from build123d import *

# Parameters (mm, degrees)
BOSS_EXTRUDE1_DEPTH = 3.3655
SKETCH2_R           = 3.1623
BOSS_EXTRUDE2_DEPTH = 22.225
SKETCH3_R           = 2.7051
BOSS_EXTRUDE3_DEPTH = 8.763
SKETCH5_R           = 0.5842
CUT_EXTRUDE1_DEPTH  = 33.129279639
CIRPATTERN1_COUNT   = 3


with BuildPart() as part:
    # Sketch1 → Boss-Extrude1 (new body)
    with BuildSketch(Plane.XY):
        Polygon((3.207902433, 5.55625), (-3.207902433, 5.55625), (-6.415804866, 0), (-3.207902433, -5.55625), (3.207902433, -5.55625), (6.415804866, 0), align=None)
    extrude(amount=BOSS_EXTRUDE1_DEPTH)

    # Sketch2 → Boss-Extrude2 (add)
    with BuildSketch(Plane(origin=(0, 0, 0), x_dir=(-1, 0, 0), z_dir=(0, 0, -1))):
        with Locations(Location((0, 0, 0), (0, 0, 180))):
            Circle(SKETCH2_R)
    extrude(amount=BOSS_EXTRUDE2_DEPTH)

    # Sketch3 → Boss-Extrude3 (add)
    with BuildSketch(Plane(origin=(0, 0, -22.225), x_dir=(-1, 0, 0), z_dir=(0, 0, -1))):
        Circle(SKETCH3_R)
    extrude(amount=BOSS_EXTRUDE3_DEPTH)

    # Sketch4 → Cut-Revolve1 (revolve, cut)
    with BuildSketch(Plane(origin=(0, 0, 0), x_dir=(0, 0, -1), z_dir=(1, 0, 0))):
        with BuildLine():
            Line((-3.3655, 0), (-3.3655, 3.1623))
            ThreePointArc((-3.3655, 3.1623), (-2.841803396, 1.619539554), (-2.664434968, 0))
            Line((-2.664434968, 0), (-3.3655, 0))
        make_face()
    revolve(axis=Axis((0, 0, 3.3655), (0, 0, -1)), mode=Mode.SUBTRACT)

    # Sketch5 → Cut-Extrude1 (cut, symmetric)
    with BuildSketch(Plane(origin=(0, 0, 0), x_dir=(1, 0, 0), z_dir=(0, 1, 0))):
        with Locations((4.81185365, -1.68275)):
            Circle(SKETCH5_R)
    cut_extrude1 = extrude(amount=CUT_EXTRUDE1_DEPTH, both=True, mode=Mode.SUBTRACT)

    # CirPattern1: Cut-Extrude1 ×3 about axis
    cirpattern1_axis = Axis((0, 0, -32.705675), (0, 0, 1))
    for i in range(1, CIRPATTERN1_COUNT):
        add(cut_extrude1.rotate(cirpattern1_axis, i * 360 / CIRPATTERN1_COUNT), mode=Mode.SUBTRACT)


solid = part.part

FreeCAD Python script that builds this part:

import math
import FreeCAD as App
import Part
import Sketcher
Q = App.Units.Quantity


def add_polygon(sketch, points):
    """Adds a closed chain of lines whose ends are joined by coincident constraints."""
    first, n = sketch.GeometryCount, len(points)
    for a, b in zip(points, points[1:] + points[:1]):
        sketch.addGeometry(Part.LineSegment(App.Vector(*a, 0), App.Vector(*b, 0)), False)
    for i in range(n):
        sketch.addConstraint(Sketcher.Constraint("Coincident", first + i, 2, first + (i + 1) % n, 1))

doc = App.newDocument("Part")
body = doc.addObject("PartDesign::Body", "Body")

# Sketch on XY plane
sketch1 = doc.addObject("Sketcher::SketchObject", "Sketch")
body.addObject(sketch1)
sketch1.AttachmentSupport = (doc.XY_Plane, [""])
sketch1.MapMode = "FlatFace"
add_polygon(sketch1, [(3.207902, 5.55625), (-3.207902, 5.55625), (-6.415805, 0), (-3.207902, -5.55625), (3.207902, -5.55625), (6.415805, 0)])  # lines 0-5
sketch1.addConstraint([
    Sketcher.Constraint("Horizontal", 0),
    Sketcher.Constraint("Horizontal", 3),
    Sketcher.Constraint("Symmetric", 0, 2, 3, 2, -1, 1),
    Sketcher.Constraint("Symmetric", 1, 2, 4, 2, -1, 1),
    Sketcher.Constraint("PointOnObject", 1, 2, -1),
    Sketcher.Constraint("Parallel", 2, 5),
    Sketcher.Constraint("Vertical", 0, 2, 2, 2),
    Sketcher.Constraint("Angle", 1, Q("-120 deg")),
    Sketcher.Constraint("DistanceY", -1, 1, 0, 2, Q("0.21875 in")),
    Sketcher.Constraint("DistanceX", 0, 2, 0, 1, 6.415805),
])
pad1 = doc.addObject("PartDesign::Pad", "Pad")
body.addObject(pad1)
pad1.Profile = sketch1
pad1.Length = Q("0.1325 in")

# Sketch on XY plane
sketch2 = doc.addObject("Sketcher::SketchObject", "Sketch001")
body.addObject(sketch2)
sketch2.AttachmentSupport = (doc.XY_Plane, [""])
sketch2.MapMode = "FlatFace"
sketch2.addGeometry(Part.Circle(App.Vector(0, 0, 0), App.Vector(0, 0, 1), 3.1623), False)
sketch2.addConstraint([
    Sketcher.Constraint("Coincident", 0, 3, -1, 1),
    Sketcher.Constraint("Diameter", 0, Q("0.249 in")),
])
pad2 = doc.addObject("PartDesign::Pad", "Pad001")
body.addObject(pad2)
pad2.Profile = sketch2
pad2.Length = Q("0.875 in")
pad2.Reversed = True

# Sketch on XY plane
sketch3 = doc.addObject("Sketcher::SketchObject", "Sketch002")
body.addObject(sketch3)
sketch3.AttachmentSupport = (doc.XY_Plane, [""])
sketch3.MapMode = "FlatFace"
sketch3.AttachmentOffset = App.Placement(App.Vector(0, 0, -0.875 * 25.4), App.Rotation())
sketch3.addGeometry(Part.Circle(App.Vector(0, 0, 0), App.Vector(0, 0, 1), 2.7051), False)
sketch3.addConstraint([
    Sketcher.Constraint("Coincident", 0, 3, -1, 1),
    Sketcher.Constraint("Diameter", 0, Q("0.213 in")),
])
pad3 = doc.addObject("PartDesign::Pad", "Pad002")
body.addObject(pad3)
pad3.Profile = sketch3
pad3.Length = Q("0.345 in")
pad3.Reversed = True

# Sketch on YZ plane
sketch4 = doc.addObject("Sketcher::SketchObject", "Sketch003")
body.addObject(sketch4)
sketch4.AttachmentSupport = (doc.YZ_Plane, [""])
sketch4.MapMode = "FlatFace"
sketch4.addGeometry([
    Part.LineSegment(App.Vector(3.1623, 3.3655, 0), App.Vector(0, 3.3655, 0)),
    Part.LineSegment(App.Vector(0, 3.3655, 0), App.Vector(0, 2.664435, 0)),
    Part.ArcOfCircle(Part.Circle(App.Vector(0, 10.147074, 0), App.Vector(0, 0, 1), 7.482639), math.radians(-90), math.radians(-65)),
], False)
sketch4.addConstraint([
    Sketcher.Constraint("Coincident", 0, 2, 1, 1),
    Sketcher.Constraint("Coincident", 1, 2, 2, 1),
    Sketcher.Constraint("Coincident", 2, 2, 0, 1),
    Sketcher.Constraint("Horizontal", 0),
    Sketcher.Constraint("Vertical", 1),
    Sketcher.Constraint("PointOnObject", 2, 3, -2),
    Sketcher.Constraint("PointOnObject", 0, 2, -2),
    Sketcher.Constraint("DistanceX", 0, 2, 0, 1, Q("0.1245 in")),
    Sketcher.Constraint("Radius", 2, 7.482639),
    Sketcher.Constraint("DistanceY", -1, 1, 0, 2, Q("0.1325 in")),
])
groove = doc.addObject("PartDesign::Groove", "Groove")
body.addObject(groove)
groove.Profile = sketch4
groove.ReferenceAxis = (sketch4, ["V_Axis"])
groove.Angle = 360

# Sketch on XZ plane
sketch5 = doc.addObject("Sketcher::SketchObject", "Sketch004")
body.addObject(sketch5)
sketch5.AttachmentSupport = (doc.XZ_Plane, [""])
sketch5.MapMode = "FlatFace"
sketch5.addGeometry(Part.Circle(App.Vector(4.811854, 1.68275, 0), App.Vector(0, 0, 1), 0.5842), False)
sketch5.addConstraint([
    Sketcher.Constraint("Diameter", 0, Q("0.046 in")),
    Sketcher.Constraint("DistanceY", -1, 1, 0, 3, 1.68275),
    Sketcher.Constraint("DistanceX", -1, 1, 0, 3, 4.811854),
])
pocket1 = doc.addObject("PartDesign::Pocket", "Pocket")
body.addObject(pocket1)
pocket1.Profile = sketch5
pocket1.Length = 66.258559
pocket1.Midplane = True
doc.recompute()

polarpattern = doc.addObject("PartDesign::PolarPattern", "PolarPattern")
body.addObject(polarpattern)
polarpattern.Originals = [pocket1]
polarpattern.Axis = (doc.Z_Axis, [""])
polarpattern.Angle = 360
polarpattern.Occurrences = 3
body.Tip = polarpattern

doc.recompute()
